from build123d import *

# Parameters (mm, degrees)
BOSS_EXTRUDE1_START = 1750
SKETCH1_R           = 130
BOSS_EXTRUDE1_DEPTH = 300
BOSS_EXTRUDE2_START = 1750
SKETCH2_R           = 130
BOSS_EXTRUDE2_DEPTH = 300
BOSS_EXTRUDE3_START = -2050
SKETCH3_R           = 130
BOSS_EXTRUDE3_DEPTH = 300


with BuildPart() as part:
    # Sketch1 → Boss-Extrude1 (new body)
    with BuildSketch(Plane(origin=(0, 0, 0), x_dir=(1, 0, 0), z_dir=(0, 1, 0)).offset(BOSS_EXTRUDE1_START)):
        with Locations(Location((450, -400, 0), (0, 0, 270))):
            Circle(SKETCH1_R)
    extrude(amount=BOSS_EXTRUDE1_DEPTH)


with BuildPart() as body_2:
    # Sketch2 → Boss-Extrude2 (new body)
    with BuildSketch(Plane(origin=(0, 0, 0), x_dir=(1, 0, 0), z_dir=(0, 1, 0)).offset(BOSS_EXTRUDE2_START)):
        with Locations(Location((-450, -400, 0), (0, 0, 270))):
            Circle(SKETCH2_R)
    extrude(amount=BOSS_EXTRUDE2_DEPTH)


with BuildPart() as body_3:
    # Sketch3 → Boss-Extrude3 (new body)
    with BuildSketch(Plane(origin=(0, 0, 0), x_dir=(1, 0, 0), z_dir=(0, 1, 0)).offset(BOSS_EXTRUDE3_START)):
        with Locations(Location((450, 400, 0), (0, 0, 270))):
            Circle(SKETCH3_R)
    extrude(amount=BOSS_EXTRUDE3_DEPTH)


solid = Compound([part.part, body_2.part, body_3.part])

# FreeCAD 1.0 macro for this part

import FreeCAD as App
import Part
import Sketcher
Q = App.Units.Quantity

doc = App.newDocument("Part")
body = doc.addObject("PartDesign::Body", "Body")

sketch1 = doc.addObject("Sketcher::SketchObject", "Sketch")
body.addObject(sketch1)
sketch1.AttachmentSupport = (doc.XZ_Plane, [""])
sketch1.MapMode = "FlatFace"
sketch1.AttachmentOffset = App.Placement(App.Vector(0, 0, -1750), App.Rotation())
sketch1.addGeometry(Part.Circle(App.Vector(450, 400, 0), App.Vector(0, 0, 1), 130), False)
sketch1.addConstraint(Sketcher.Constraint("Diameter", 0, Q("260 mm")))
sketch1.addConstraint(Sketcher.Constraint("DistanceX", -1, 1, 0, 3, Q("450 mm")))
sketch1.addConstraint(Sketcher.Constraint("DistanceY", -1, 1, 0, 3, Q("400 mm")))
pad1 = doc.addObject("PartDesign::Pad", "Pad")
body.addObject(pad1)
pad1.Profile = sketch1
pad1.Length = 300
pad1.Reversed = True
body2 = doc.addObject("PartDesign::Body", "Body001")

sketch2 = doc.addObject("Sketcher::SketchObject", "Sketch001")
body2.addObject(sketch2)
sketch2.AttachmentSupport = (doc.getObject("XZ_Plane001"), [""])
sketch2.MapMode = "FlatFace"
sketch2.AttachmentOffset = App.Placement(App.Vector(0, 0, -1750), App.Rotation())
sketch2.addGeometry(Part.Circle(App.Vector(-450, 400, 0), App.Vector(0, 0, 1), 130), False)
sketch2.addConstraint(Sketcher.Constraint("Diameter", 0, Q("260 mm")))
sketch2.addConstraint(Sketcher.Constraint("DistanceX", 0, 3, -1, 1, Q("450 mm")))
sketch2.addConstraint(Sketcher.Constraint("DistanceY", -1, 1, 0, 3, Q("400 mm")))
pad2 = doc.addObject("PartDesign::Pad", "Pad001")
body2.addObject(pad2)
pad2.Profile = sketch2
pad2.Length = 300
pad2.Reversed = True
body3 = doc.addObject("PartDesign::Body", "Body002")

sketch3 = doc.addObject("Sketcher::SketchObject", "Sketch002")
body3.addObject(sketch3)
sketch3.AttachmentSupport = (doc.getObject("XZ_Plane002"), [""])
sketch3.MapMode = "FlatFace"
sketch3.AttachmentOffset = App.Placement(App.Vector(0, 0, 2050), App.Rotation())
sketch3.addGeometry(Part.Circle(App.Vector(450, -400, 0), App.Vector(0, 0, 1), 130), False)
sketch3.addConstraint(Sketcher.Constraint("Diameter", 0, Q("260 mm")))
sketch3.addConstraint(Sketcher.Constraint("DistanceX", -1, 1, 0, 3, Q("450 mm")))
sketch3.addConstraint(Sketcher.Constraint("DistanceY", 0, 3, -1, 1, Q("400 mm")))
pad3 = doc.addObject("PartDesign::Pad", "Pad002")
body3.addObject(pad3)
pad3.Profile = sketch3
pad3.Length = 300
pad3.Reversed = True

doc.recompute()
